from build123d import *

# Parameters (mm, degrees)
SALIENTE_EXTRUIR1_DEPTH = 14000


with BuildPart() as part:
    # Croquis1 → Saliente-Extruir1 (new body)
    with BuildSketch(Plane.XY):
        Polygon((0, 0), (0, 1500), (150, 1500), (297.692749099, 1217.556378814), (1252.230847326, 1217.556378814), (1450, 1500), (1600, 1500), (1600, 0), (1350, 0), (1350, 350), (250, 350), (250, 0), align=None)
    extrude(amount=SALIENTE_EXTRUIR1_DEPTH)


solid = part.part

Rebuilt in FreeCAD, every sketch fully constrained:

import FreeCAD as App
import Part
import Sketcher

V = App.Vector
Q = App.Units.Quantity

doc = App.newDocument("Part")
body = doc.addObject("PartDesign::Body", "Body")

# Sketch on XY plane
sketch1 = body.newObject("Sketcher::SketchObject", "Sketch")
sketch1.AttachmentSupport = (doc.getObject("XY_Plane"), [""])
sketch1.MapMode = "FlatFace"
sketch1.addGeometry(Part.LineSegment(V(0, 1500, 0), V(0, 0, 0)), False)
sketch1.addGeometry(Part.LineSegment(V(0, 0, 0), V(250, 0, 0)), False)
sketch1.addGeometry(Part.LineSegment(V(250, 0, 0), V(250, 350, 0)), False)
sketch1.addGeometry(Part.LineSegment(V(250, 350, 0), V(1350, 350, 0)), False)
sketch1.addGeometry(Part.LineSegment(V(1350, 350, 0), V(1350, 0, 0)), False)
sketch1.addGeometry(Part.LineSegment(V(1350, 0, 0), V(1600, 0, 0)), False)
sketch1.addGeometry(Part.LineSegment(V(1600, 0, 0), V(1600, 1500, 0)), False)
sketch1.addGeometry(Part.LineSegment(V(1600, 1500, 0), V(1450, 1500, 0)), False)
sketch1.addGeometry(Part.LineSegment(V(1450, 1500, 0), V(1252, 1218, 0)), False)
sketch1.addGeometry(Part.LineSegment(V(1252, 1218, 0), V(298, 1218, 0)), False)
sketch1.addGeometry(Part.LineSegment(V(298, 1218, 0), V(150, 1500, 0)), False)
sketch1.addGeometry(Part.LineSegment(V(150, 1500, 0), V(0, 1500, 0)), False)
sketch1.addConstraint(Sketcher.Constraint("Coincident", 0, 2, 1, 1))
sketch1.addConstraint(Sketcher.Constraint("Coincident", 1, 2, 2, 1))
sketch1.addConstraint(Sketcher.Constraint("Coincident", 2, 2, 3, 1))
sketch1.addConstraint(Sketcher.Constraint("Coincident", 3, 2, 4, 1))
sketch1.addConstraint(Sketcher.Constraint("Coincident", 4, 2, 5, 1))
sketch1.addConstraint(Sketcher.Constraint("Coincident", 5, 2, 6, 1))
sketch1.addConstraint(Sketcher.Constraint("Coincident", 6, 2, 7, 1))
sketch1.addConstraint(Sketcher.Constraint("Coincident", 7, 2, 8, 1))
sketch1.addConstraint(Sketcher.Constraint("Coincident", 8, 2, 9, 1))
sketch1.addConstraint(Sketcher.Constraint("Coincident", 9, 2, 10, 1))
sketch1.addConstraint(Sketcher.Constraint("Coincident", 10, 2, 11, 1))
sketch1.addConstraint(Sketcher.Constraint("Coincident", 11, 2, 0, 1))
sketch1.addConstraint(Sketcher.Constraint("Vertical", 0))
sketch1.addConstraint(Sketcher.Constraint("Horizontal", 1))
sketch1.addConstraint(Sketcher.Constraint("Vertical", 2))
sketch1.addConstraint(Sketcher.Constraint("Horizontal", 3))
sketch1.addConstraint(Sketcher.Constraint("Vertical", 4))
sketch1.addConstraint(Sketcher.Constraint("Horizontal", 5))
sketch1.addConstraint(Sketcher.Constraint("Vertical", 6))
sketch1.addConstraint(Sketcher.Constraint("Horizontal", 7))
sketch1.addConstraint(Sketcher.Constraint("Horizontal", 9))
sketch1.addConstraint(Sketcher.Constraint("Horizontal", 11))
sketch1.addConstraint(Sketcher.Constraint("Coincident", 0, 2, -1, 1))
sketch1.addConstraint(Sketcher.Constraint("PointOnObject", 4, 2, -1))
sketch1.addConstraint(Sketcher.Constraint("Horizontal", 7, 2, 10, 2))
sketch1.addConstraint(Sketcher.Constraint("Equal", 1, 5))
sketch1.addConstraint(Sketcher.Constraint("Equal", 7, 11))
sketch1.addConstraint(Sketcher.Constraint("DistanceX", 1, 1, 1, 2, 250.0))
sketch1.addConstraint(Sketcher.Constraint("DistanceX", 3, 1, 3, 2, 1100.0))
sketch1.addConstraint(Sketcher.Constraint("DistanceX", 7, 2, 7, 1, 150.0))
sketch1.addConstraint(Sketcher.Constraint("DistanceY", 0, 2, 0, 1, 1500.0))
sketch1.addConstraint(Sketcher.Constraint("DistanceY", 2, 1, 2, 2, 350.0))
sketch1.addConstraint(Sketcher.Constraint("Angle", 8, Q("-125 deg")))
sketch1.addConstraint(Sketcher.Constraint("DistanceX", 9, 2, 9, 1, 954.538098))
sketch1.addConstraint(Sketcher.Constraint("DistanceY", -1, 1, 8, 2, 1217.556379))
pad1 = body.newObject("PartDesign::Pad", "Pad")
pad1.Profile = sketch1
pad1.Length = 14000

doc.recompute()
